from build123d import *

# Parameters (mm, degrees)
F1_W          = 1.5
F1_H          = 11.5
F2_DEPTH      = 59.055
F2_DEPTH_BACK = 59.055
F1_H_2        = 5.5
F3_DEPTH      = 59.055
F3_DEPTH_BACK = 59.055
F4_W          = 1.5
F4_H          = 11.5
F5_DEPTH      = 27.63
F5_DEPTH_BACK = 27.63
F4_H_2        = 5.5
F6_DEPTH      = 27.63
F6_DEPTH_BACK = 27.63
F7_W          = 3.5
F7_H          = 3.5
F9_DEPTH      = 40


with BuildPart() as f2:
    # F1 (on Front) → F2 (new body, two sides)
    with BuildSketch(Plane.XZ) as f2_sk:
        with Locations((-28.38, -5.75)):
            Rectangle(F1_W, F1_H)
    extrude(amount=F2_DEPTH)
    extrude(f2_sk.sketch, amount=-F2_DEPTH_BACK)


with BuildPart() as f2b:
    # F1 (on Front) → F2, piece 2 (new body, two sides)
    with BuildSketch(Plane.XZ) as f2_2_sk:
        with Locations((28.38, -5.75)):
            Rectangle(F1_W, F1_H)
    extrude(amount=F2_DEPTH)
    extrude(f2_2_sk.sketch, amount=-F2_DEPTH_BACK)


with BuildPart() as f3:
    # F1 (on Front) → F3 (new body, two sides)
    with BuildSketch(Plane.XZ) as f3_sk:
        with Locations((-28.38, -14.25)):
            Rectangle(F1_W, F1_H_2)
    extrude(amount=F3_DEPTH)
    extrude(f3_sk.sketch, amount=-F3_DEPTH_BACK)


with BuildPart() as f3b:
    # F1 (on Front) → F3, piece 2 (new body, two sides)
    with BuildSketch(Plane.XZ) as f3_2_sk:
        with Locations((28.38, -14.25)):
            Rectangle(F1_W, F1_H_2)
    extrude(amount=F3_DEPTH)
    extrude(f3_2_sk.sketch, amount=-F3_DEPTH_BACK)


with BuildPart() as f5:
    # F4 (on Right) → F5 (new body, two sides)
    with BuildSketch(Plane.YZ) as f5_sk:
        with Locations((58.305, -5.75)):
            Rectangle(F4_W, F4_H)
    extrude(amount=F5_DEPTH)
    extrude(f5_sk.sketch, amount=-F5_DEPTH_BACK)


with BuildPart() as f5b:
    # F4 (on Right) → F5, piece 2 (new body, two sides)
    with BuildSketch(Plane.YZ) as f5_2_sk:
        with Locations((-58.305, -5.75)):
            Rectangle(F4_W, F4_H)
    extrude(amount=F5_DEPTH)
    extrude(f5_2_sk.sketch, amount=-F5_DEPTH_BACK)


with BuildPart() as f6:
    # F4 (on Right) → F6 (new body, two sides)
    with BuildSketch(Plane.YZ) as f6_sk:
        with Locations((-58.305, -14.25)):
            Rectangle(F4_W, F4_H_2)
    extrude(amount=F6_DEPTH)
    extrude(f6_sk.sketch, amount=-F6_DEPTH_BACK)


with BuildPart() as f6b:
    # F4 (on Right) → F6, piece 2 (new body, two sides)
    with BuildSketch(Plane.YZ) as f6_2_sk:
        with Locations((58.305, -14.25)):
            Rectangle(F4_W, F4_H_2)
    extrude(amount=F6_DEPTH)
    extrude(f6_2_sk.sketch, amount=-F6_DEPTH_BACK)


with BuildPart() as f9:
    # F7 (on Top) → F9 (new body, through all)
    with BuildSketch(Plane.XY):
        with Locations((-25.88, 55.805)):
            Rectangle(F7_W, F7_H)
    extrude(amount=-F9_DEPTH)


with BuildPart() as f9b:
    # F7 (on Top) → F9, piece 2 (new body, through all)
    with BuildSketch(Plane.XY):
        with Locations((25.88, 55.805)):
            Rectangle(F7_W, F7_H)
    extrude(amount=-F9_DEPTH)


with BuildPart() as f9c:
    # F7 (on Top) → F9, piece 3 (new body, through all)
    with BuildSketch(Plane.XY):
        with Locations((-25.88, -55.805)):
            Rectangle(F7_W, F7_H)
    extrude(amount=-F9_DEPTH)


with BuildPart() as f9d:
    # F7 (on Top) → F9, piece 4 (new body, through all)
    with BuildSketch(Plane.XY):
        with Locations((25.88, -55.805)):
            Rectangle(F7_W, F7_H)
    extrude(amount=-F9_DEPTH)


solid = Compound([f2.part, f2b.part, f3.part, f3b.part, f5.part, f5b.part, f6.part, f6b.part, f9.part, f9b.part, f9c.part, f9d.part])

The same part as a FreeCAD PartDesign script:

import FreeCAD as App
import Part
import Sketcher
Q = App.Units.Quantity


def add_polygon(sketch, points):
    """Adds a closed chain of lines whose ends are joined by coincident constraints."""
    first, n = sketch.GeometryCount, len(points)
    for a, b in zip(points, points[1:] + points[:1]):
        sketch.addGeometry(Part.LineSegment(App.Vector(*a, 0), App.Vector(*b, 0)), False)
    for i in range(n):
        sketch.addConstraint(Sketcher.Constraint("Coincident", first + i, 2, first + (i + 1) % n, 1))

doc = App.newDocument("Part")
params = doc.addObject("Spreadsheet::Sheet", "Params")
for row, (alias, value) in enumerate([
    ("sketch1_width", "1.5 mm"),
    ("sketch1_height", "11.5 mm"),
    ("pad1_length", "59.055 mm"),
    ("pad1_length2", "59.055 mm"),
    ("sketch2_width", "1.5 mm"),
    ("sketch2_height", "11.5 mm"),
    ("pad2_length", "59.055 mm"),
    ("pad2_length2", "59.055 mm"),
    ("sketch3_width", "1.5 mm"),
    ("sketch3_height", "5.5 mm"),
    ("pad3_length", "59.055 mm"),
    ("pad3_length2", "59.055 mm"),
    ("sketch4_width", "1.5 mm"),
    ("sketch4_height", "5.5 mm"),
    ("pad4_length", "59.055 mm"),
    ("pad4_length2", "59.055 mm"),
    ("sketch5_width", "1.5 mm"),
    ("sketch5_height", "11.5 mm"),
    ("pad5_length", "27.63 mm"),
    ("pad5_length2", "27.63 mm"),
    ("sketch6_width", "1.5 mm"),
    ("sketch6_height", "11.5 mm"),
    ("pad6_length", "27.63 mm"),
    ("pad6_length2", "27.63 mm"),
    ("sketch7_width", "1.5 mm"),
    ("sketch7_height", "5.5 mm"),
    ("pad7_length", "27.63 mm"),
    ("pad7_length2", "27.63 mm"),
    ("sketch8_width", "1.5 mm"),
    ("sketch8_height", "5.5 mm"),
    ("pad8_length", "27.63 mm"),
    ("pad8_length2", "27.63 mm"),
    ("sketch9_width", "3.5 mm"),
    ("pad9_length", "40 mm"),
    ("sketch10_width", "3.5 mm"),
    ("pad10_length", "40 mm"),
    ("sketch11_width", "3.5 mm"),
    ("pad11_length", "40 mm"),
    ("sketch12_width", "3.5 mm"),
    ("pad12_length", "40 mm"),
], start=1):
    params.set(f"A{row}", alias)
    params.set(f"B{row}", "=" + value)
    params.setAlias(f"B{row}", alias)

body = doc.addObject("PartDesign::Body", "Body")

sketch1 = body.newObject("Sketcher::SketchObject", "Sketch")
sketch1.AttachmentSupport = (doc.getObject("XZ_Plane"), [""])
sketch1.MapMode = "FlatFace"
add_polygon(sketch1, [(-29.1, 0), (-29.1, -11.5), (-27.6, -11.5), (-27.6, 0)])
sketch1.addConstraint(Sketcher.Constraint("Vertical", 0))
sketch1.addConstraint(Sketcher.Constraint("Horizontal", 1))
sketch1.addConstraint(Sketcher.Constraint("Vertical", 2))
sketch1.addConstraint(Sketcher.Constraint("Horizontal", 3))
sketch1.addConstraint(Sketcher.Constraint("PointOnObject", 2, 2, -1))
sketch1.addConstraint(Sketcher.Constraint("DistanceX", 1, 1, 1, 2, Q("1.5 mm")))
sketch1.addConstraint(Sketcher.Constraint("DistanceY", 0, 2, 0, 1, Q("11.5 mm")))
sketch1.addConstraint(Sketcher.Constraint("DistanceX", 0, 2, -1, 1, Q("29.13 mm")))
sketch1.setExpression("Constraints[9]", "Params.sketch1_width")
sketch1.setExpression("Constraints[10]", "Params.sketch1_height")
pad1 = body.newObject("PartDesign::Pad", "Pad")
pad1.Profile = sketch1
pad1.Type = "TwoLengths"
pad1.setExpression("Length", "Params.pad1_length")
pad1.setExpression("Length2", "Params.pad1_length2")
body2 = doc.addObject("PartDesign::Body", "Body001")

sketch2 = body2.newObject("Sketcher::SketchObject", "Sketch001")
sketch2.AttachmentSupport = (doc.getObject("XZ_Plane001"), [""])
sketch2.MapMode = "FlatFace"
add_polygon(sketch2, [(27.6, 0), (27.6, -11.5), (29.1, -11.5), (29.1, 0)])
sketch2.addConstraint(Sketcher.Constraint("Vertical", 0))
sketch2.addConstraint(Sketcher.Constraint("Horizontal", 1))
sketch2.addConstraint(Sketcher.Constraint("Vertical", 2))
sketch2.addConstraint(Sketcher.Constraint("Horizontal", 3))
sketch2.addConstraint(Sketcher.Constraint("PointOnObject", 2, 2, -1))
sketch2.addConstraint(Sketcher.Constraint("DistanceX", 1, 1, 1, 2, Q("1.5 mm")))
sketch2.addConstraint(Sketcher.Constraint("DistanceY", 0, 2, 0, 1, Q("11.5 mm")))
sketch2.addConstraint(Sketcher.Constraint("DistanceX", -1, 1, 0, 2, Q("27.63 mm")))
sketch2.setExpression("Constraints[9]", "Params.sketch2_width")
sketch2.setExpression("Constraints[10]", "Params.sketch2_height")
pad2 = body2.newObject("PartDesign::Pad", "Pad001")
pad2.Profile = sketch2
pad2.Type = "TwoLengths"
pad2.setExpression("Length", "Params.pad2_length")
pad2.setExpression("Length2", "Params.pad2_length2")
body3 = doc.addObject("PartDesign::Body", "Body002")

sketch3 = body3.newObject("Sketcher::SketchObject", "Sketch002")
sketch3.AttachmentSupport = (doc.getObject("XZ_Plane002"), [""])
sketch3.MapMode = "FlatFace"
add_polygon(sketch3, [(-29.1, -11.5), (-29.1, -17), (-27.6, -17), (-27.6, -11.5)])
sketch3.addConstraint(Sketcher.Constraint("Vertical", 0))
sketch3.addConstraint(Sketcher.Constraint("Horizontal", 1))
sketch3.addConstraint(Sketcher.Constraint("Vertical", 2))
sketch3.addConstraint(Sketcher.Constraint("Horizontal", 3))
sketch3.addConstraint(Sketcher.Constraint("DistanceX", 1, 1, 1, 2, Q("1.5 mm")))
sketch3.addConstraint(Sketcher.Constraint("DistanceY", 0, 2, 0, 1, Q("5.5 mm")))
sketch3.addConstraint(Sketcher.Constraint("DistanceY", 0, 2, -1, 1, Q("17 mm")))
sketch3.addConstraint(Sketcher.Constraint("DistanceX", 0, 2, -1, 1, Q("29.13 mm")))
sketch3.setExpression("Constraints[8]", "Params.sketch3_width")
sketch3.setExpression("Constraints[9]", "Params.sketch3_height")
pad3 = body3.newObject("PartDesign::Pad", "Pad002")
pad3.Profile = sketch3
pad3.Type = "TwoLengths"
pad3.setExpression("Length", "Params.pad3_length")
pad3.setExpression("Length2", "Params.pad3_length2")
body4 = doc.addObject("PartDesign::Body", "Body003")

sketch4 = body4.newObject("Sketcher::SketchObject", "Sketch003")
sketch4.AttachmentSupport = (doc.getObject("XZ_Plane003"), [""])
sketch4.MapMode = "FlatFace"
add_polygon(sketch4, [(27.6, -11.5), (27.6, -17), (29.1, -17), (29.1, -11.5)])
sketch4.addConstraint(Sketcher.Constraint("Vertical", 0))
sketch4.addConstraint(Sketcher.Constraint("Horizontal", 1))
sketch4.addConstraint(Sketcher.Constraint("Vertical", 2))
sketch4.addConstraint(Sketcher.Constraint("Horizontal", 3))
sketch4.addConstraint(Sketcher.Constraint("DistanceX", 1, 1, 1, 2, Q("1.5 mm")))
sketch4.addConstraint(Sketcher.Constraint("DistanceY", 0, 2, 0, 1, Q("5.5 mm")))
sketch4.addConstraint(Sketcher.Constraint("DistanceY", 0, 2, -1, 1, Q("17 mm")))
sketch4.addConstraint(Sketcher.Constraint("DistanceX", -1, 1, 0, 2, Q("27.63 mm")))
sketch4.setExpression("Constraints[8]", "Params.sketch4_width")
sketch4.setExpression("Constraints[9]", "Params.sketch4_height")
pad4 = body4.newObject("PartDesign::Pad", "Pad003")
pad4.Profile = sketch4
pad4.Type = "TwoLengths"
pad4.setExpression("Length", "Params.pad4_length")
pad4.setExpression("Length2", "Params.pad4_length2")
body5 = doc.addObject("PartDesign::Body", "Body004")

sketch5 = body5.newObject("Sketcher::SketchObject", "Sketch004")
sketch5.AttachmentSupport = (doc.getObject("YZ_Plane004"), [""])
sketch5.MapMode = "FlatFace"
add_polygon(sketch5, [(57.6, 0), (57.6, -11.5), (59.1, -11.5), (59.1, 0)])
sketch5.addConstraint(Sketcher.Constraint("Vertical", 0))
sketch5.addConstraint(Sketcher.Constraint("Horizontal", 1))
sketch5.addConstraint(Sketcher.Constraint("Vertical", 2))
sketch5.addConstraint(Sketcher.Constraint("Horizontal", 3))
sketch5.addConstraint(Sketcher.Constraint("PointOnObject", 2, 2, -1))
sketch5.addConstraint(Sketcher.Constraint("DistanceX", 1, 1, 1, 2, Q("1.5 mm")))
sketch5.addConstraint(Sketcher.Constraint("DistanceY", 0, 2, 0, 1, Q("11.5 mm")))
sketch5.addConstraint(Sketcher.Constraint("DistanceX", -1, 1, 0, 2, Q("57.555 mm")))
sketch5.setExpression("Constraints[9]", "Params.sketch5_width")
sketch5.setExpression("Constraints[10]", "Params.sketch5_height")
pad5 = body5.newObject("PartDesign::Pad", "Pad004")
pad5.Profile = sketch5
pad5.Type = "TwoLengths"
pad5.setExpression("Length", "Params.pad5_length")
pad5.setExpression("Length2", "Params.pad5_length2")
body6 = doc.addObject("PartDesign::Body", "Body005")

sketch6 = body6.newObject("Sketcher::SketchObject", "Sketch005")
sketch6.AttachmentSupport = (doc.getObject("YZ_Plane005"), [""])
sketch6.MapMode = "FlatFace"
add_polygon(sketch6, [(-59.1, 0), (-59.1, -11.5), (-57.6, -11.5), (-57.6, 0)])
sketch6.addConstraint(Sketcher.Constraint("Vertical", 0))
sketch6.addConstraint(Sketcher.Constraint("Horizontal", 1))
sketch6.addConstraint(Sketcher.Constraint("Vertical", 2))
sketch6.addConstraint(Sketcher.Constraint("Horizontal", 3))
sketch6.addConstraint(Sketcher.Constraint("PointOnObject", 2, 2, -1))
sketch6.addConstraint(Sketcher.Constraint("DistanceX", 1, 1, 1, 2, Q("1.5 mm")))
sketch6.addConstraint(Sketcher.Constraint("DistanceY", 0, 2, 0, 1, Q("11.5 mm")))
sketch6.addConstraint(Sketcher.Constraint("DistanceX", 0, 2, -1, 1, Q("59.055 mm")))
sketch6.setExpression("Constraints[9]", "Params.sketch6_width")
sketch6.setExpression("Constraints[10]", "Params.sketch6_height")
pad6 = body6.newObject("PartDesign::Pad", "Pad005")
pad6.Profile = sketch6
pad6.Type = "TwoLengths"
pad6.setExpression("Length", "Params.pad6_length")
pad6.setExpression("Length2", "Params.pad6_length2")
body7 = doc.addObject("PartDesign::Body", "Body006")

sketch7 = body7.newObject("Sketcher::SketchObject", "Sketch006")
sketch7.AttachmentSupport = (doc.getObject("YZ_Plane006"), [""])
sketch7.MapMode = "FlatFace"
add_polygon(sketch7, [(-59.1, -11.5), (-59.1, -17), (-57.6, -17), (-57.6, -11.5)])
sketch7.addConstraint(Sketcher.Constraint("Vertical", 0))
sketch7.addConstraint(Sketcher.Constraint("Horizontal", 1))
sketch7.addConstraint(Sketcher.Constraint("Vertical", 2))
sketch7.addConstraint(Sketcher.Constraint("Horizontal", 3))
sketch7.addConstraint(Sketcher.Constraint("DistanceX", 1, 1, 1, 2, Q("1.5 mm")))
sketch7.addConstraint(Sketcher.Constraint("DistanceY", 0, 2, 0, 1, Q("5.5 mm")))
sketch7.addConstraint(Sketcher.Constraint("DistanceY", 0, 2, -1, 1, Q("17 mm")))
sketch7.addConstraint(Sketcher.Constraint("DistanceX", 0, 2, -1, 1, Q("59.055 mm")))
sketch7.setExpression("Constraints[8]", "Params.sketch7_width")
sketch7.setExpression("Constraints[9]", "Params.sketch7_height")
pad7 = body7.newObject("PartDesign::Pad", "Pad006")
pad7.Profile = sketch7
pad7.Type = "TwoLengths"
pad7.setExpression("Length", "Params.pad7_length")
pad7.setExpression("Length2", "Params.pad7_length2")
body8 = doc.addObject("PartDesign::Body", "Body007")

sketch8 = body8.newObject("Sketcher::SketchObject", "Sketch007")
sketch8.AttachmentSupport = (doc.getObject("YZ_Plane007"), [""])
sketch8.MapMode = "FlatFace"
add_polygon(sketch8, [(57.6, -11.5), (57.6, -17), (59.1, -17), (59.1, -11.5)])
sketch8.addConstraint(Sketcher.Constraint("Vertical", 0))
sketch8.addConstraint(Sketcher.Constraint("Horizontal", 1))
sketch8.addConstraint(Sketcher.Constraint("Vertical", 2))
sketch8.addConstraint(Sketcher.Constraint("Horizontal", 3))
sketch8.addConstraint(Sketcher.Constraint("DistanceX", 1, 1, 1, 2, Q("1.5 mm")))
sketch8.addConstraint(Sketcher.Constraint("DistanceY", 0, 2, 0, 1, Q("5.5 mm")))
sketch8.addConstraint(Sketcher.Constraint("DistanceY", 0, 2, -1, 1, Q("17 mm")))
sketch8.addConstraint(Sketcher.Constraint("DistanceX", -1, 1, 0, 2, Q("57.555 mm")))
sketch8.setExpression("Constraints[8]", "Params.sketch8_width")
sketch8.setExpression("Constraints[9]", "Params.sketch8_height")
pad8 = body8.newObject("PartDesign::Pad", "Pad007")
pad8.Profile = sketch8
pad8.Type = "TwoLengths"
pad8.setExpression("Length", "Params.pad8_length")
pad8.setExpression("Length2", "Params.pad8_length2")
body9 = doc.addObject("PartDesign::Body", "Body008")

sketch9 = body9.newObject("Sketcher::SketchObject", "Sketch008")
sketch9.AttachmentSupport = (doc.getObject("XY_Plane008"), [""])
sketch9.MapMode = "FlatFace"
add_polygon(sketch9, [(-27.6, 57.6), (-27.6, 54.1), (-24.1, 54.1), (-24.1, 57.6)])
sketch9.addConstraint(Sketcher.Constraint("Vertical", 0))
sketch9.addConstraint(Sketcher.Constraint("Horizontal", 1))
sketch9.addConstraint(Sketcher.Constraint("Vertical", 2))
sketch9.addConstraint(Sketcher.Constraint("Horizontal", 3))
sketch9.addConstraint(Sketcher.Constraint("Equal", 3, 0))
sketch9.addConstraint(Sketcher.Constraint("DistanceX", 1, 1, 1, 2, Q("3.5 mm")))
sketch9.addConstraint(Sketcher.Constraint("DistanceX", 0, 2, -1, 1, Q("27.63 mm")))
sketch9.addConstraint(Sketcher.Constraint("DistanceY", -1, 1, 0, 2, Q("54.055 mm")))
sketch9.setExpression("Constraints[9]", "Params.sketch9_width")
pad9 = body9.newObject("PartDesign::Pad", "Pad008")
pad9.Profile = sketch9
pad9.setExpression("Length", "Params.pad9_length")
pad9.Reversed = True
body10 = doc.addObject("PartDesign::Body", "Body009")

sketch10 = body10.newObject("Sketcher::SketchObject", "Sketch009")
sketch10.AttachmentSupport = (doc.getObject("XY_Plane009"), [""])
sketch10.MapMode = "FlatFace"
add_polygon(sketch10, [(24.1, 57.6), (24.1, 54.1), (27.6, 54.1), (27.6, 57.6)])
sketch10.addConstraint(Sketcher.Constraint("Vertical", 0))
sketch10.addConstraint(Sketcher.Constraint("Horizontal", 1))
sketch10.addConstraint(Sketcher.Constraint("Vertical", 2))
sketch10.addConstraint(Sketcher.Constraint("Horizontal", 3))
sketch10.addConstraint(Sketcher.Constraint("Equal", 3, 0))
sketch10.addConstraint(Sketcher.Constraint("DistanceX", 1, 1, 1, 2, Q("3.5 mm")))
sketch10.addConstraint(Sketcher.Constraint("DistanceX", -1, 1, 0, 2, Q("24.13 mm")))
sketch10.addConstraint(Sketcher.Constraint("DistanceY", -1, 1, 0, 2, Q("54.055 mm")))
sketch10.setExpression("Constraints[9]", "Params.sketch10_width")
pad10 = body10.newObject("PartDesign::Pad", "Pad009")
pad10.Profile = sketch10
pad10.setExpression("Length", "Params.pad10_length")
pad10.Reversed = True
body11 = doc.addObject("PartDesign::Body", "Body010")

sketch11 = body11.newObject("Sketcher::SketchObject", "Sketch010")
sketch11.AttachmentSupport = (doc.getObject("XY_Plane010"), [""])
sketch11.MapMode = "FlatFace"
add_polygon(sketch11, [(-27.6, -54.1), (-27.6, -57.6), (-24.1, -57.6), (-24.1, -54.1)])
sketch11.addConstraint(Sketcher.Constraint("Vertical", 0))
sketch11.addConstraint(Sketcher.Constraint("Horizontal", 1))
sketch11.addConstraint(Sketcher.Constraint("Vertical", 2))
sketch11.addConstraint(Sketcher.Constraint("Horizontal", 3))
sketch11.addConstraint(Sketcher.Constraint("Equal", 3, 0))
sketch11.addConstraint(Sketcher.Constraint("DistanceX", 1, 1, 1, 2, Q("3.5 mm")))
sketch11.addConstraint(Sketcher.Constraint("DistanceX", 0, 2, -1, 1, Q("27.63 mm")))
sketch11.addConstraint(Sketcher.Constraint("DistanceY", 0, 2, -1, 1, Q("57.555 mm")))
sketch11.setExpression("Constraints[9]", "Params.sketch11_width")
pad11 = body11.newObject("PartDesign::Pad", "Pad010")
pad11.Profile = sketch11
pad11.setExpression("Length", "Params.pad11_length")
pad11.Reversed = True
body12 = doc.addObject("PartDesign::Body", "Body011")

sketch12 = body12.newObject("Sketcher::SketchObject", "Sketch011")
sketch12.AttachmentSupport = (doc.getObject("XY_Plane011"), [""])
sketch12.MapMode = "FlatFace"
add_polygon(sketch12, [(24.1, -54.1), (24.1, -57.6), (27.6, -57.6), (27.6, -54.1)])
sketch12.addConstraint(Sketcher.Constraint("Vertical", 0))
sketch12.addConstraint(Sketcher.Constraint("Horizontal", 1))
sketch12.addConstraint(Sketcher.Constraint("Vertical", 2))
sketch12.addConstraint(Sketcher.Constraint("Horizontal", 3))
sketch12.addConstraint(Sketcher.Constraint("Equal", 3, 0))
sketch12.addConstraint(Sketcher.Constraint("DistanceX", 1, 1, 1, 2, Q("3.5 mm")))
sketch12.addConstraint(Sketcher.Constraint("DistanceX", -1, 1, 0, 2, Q("24.13 mm")))
sketch12.addConstraint(Sketcher.Constraint("DistanceY", 0, 2, -1, 1, Q("57.555 mm")))
sketch12.setExpression("Constraints[9]", "Params.sketch12_width")
pad12 = body12.newObject("PartDesign::Pad", "Pad011")
pad12.Profile = sketch12
pad12.setExpression("Length", "Params.pad12_length")
pad12.Reversed = True

doc.recompute()
